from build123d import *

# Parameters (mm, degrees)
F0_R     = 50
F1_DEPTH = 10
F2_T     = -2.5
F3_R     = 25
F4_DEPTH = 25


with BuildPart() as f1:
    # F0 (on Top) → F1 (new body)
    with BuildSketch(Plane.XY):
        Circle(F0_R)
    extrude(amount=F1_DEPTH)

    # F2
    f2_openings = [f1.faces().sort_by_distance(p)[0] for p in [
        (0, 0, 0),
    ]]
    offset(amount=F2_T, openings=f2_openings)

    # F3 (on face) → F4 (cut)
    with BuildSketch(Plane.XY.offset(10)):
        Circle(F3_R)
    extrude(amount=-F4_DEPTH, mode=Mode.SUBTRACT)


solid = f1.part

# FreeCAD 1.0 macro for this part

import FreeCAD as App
import Part
import Sketcher
Q = App.Units.Quantity


def faces_at(feature, points):
    """Names of the faces that lie closest to the given points."""
    faces = feature.Shape.Faces
    near = lambda p: min(range(len(faces)), key=lambda i: faces[i].distToShape(Part.Vertex(*p))[0])
    return sorted({f"Face{near(p) + 1}" for p in points})

doc = App.newDocument("Part")
body = doc.addObject("PartDesign::Body", "Body")

sketch1 = doc.addObject("Sketcher::SketchObject", "Sketch")
body.addObject(sketch1)
sketch1.AttachmentSupport = (doc.XY_Plane, [""])
sketch1.MapMode = "FlatFace"
sketch1.addGeometry(Part.Circle(App.Vector(0, 0, 0), App.Vector(0, 0, 1), 50), False)
sketch1.addConstraint(Sketcher.Constraint("Coincident", 0, 3, -1, 1))
sketch1.addConstraint(Sketcher.Constraint("Diameter", 0, Q("100 mm")))
pad1 = doc.addObject("PartDesign::Pad", "Pad")
body.addObject(pad1)
pad1.Profile = sketch1
pad1.Length = 10
doc.recompute()

thickness = doc.addObject("PartDesign::Thickness", "Thickness")
body.addObject(thickness)
thickness.Base = (pad1, faces_at(pad1, [(0, 0, 0)]))
thickness.Value = 2.5
thickness.Reversed = True
thickness.Join = "Arc"

sketch2 = doc.addObject("Sketcher::SketchObject", "Sketch001")
body.addObject(sketch2)
sketch2.AttachmentSupport = (doc.XY_Plane, [""])
sketch2.MapMode = "FlatFace"
sketch2.AttachmentOffset = App.Placement(App.Vector(0, 0, 10), App.Rotation())
sketch2.addGeometry(Part.Circle(App.Vector(0, 0, 0), App.Vector(0, 0, 1), 25), False)
sketch2.addConstraint(Sketcher.Constraint("Coincident", 0, 3, -1, 1))
sketch2.addConstraint(Sketcher.Constraint("Diameter", 0, Q("50 mm")))
pocket1 = doc.addObject("PartDesign::Pocket", "Pocket")
body.addObject(pocket1)
pocket1.Profile = sketch2
pocket1.Length = 25

doc.recompute()
